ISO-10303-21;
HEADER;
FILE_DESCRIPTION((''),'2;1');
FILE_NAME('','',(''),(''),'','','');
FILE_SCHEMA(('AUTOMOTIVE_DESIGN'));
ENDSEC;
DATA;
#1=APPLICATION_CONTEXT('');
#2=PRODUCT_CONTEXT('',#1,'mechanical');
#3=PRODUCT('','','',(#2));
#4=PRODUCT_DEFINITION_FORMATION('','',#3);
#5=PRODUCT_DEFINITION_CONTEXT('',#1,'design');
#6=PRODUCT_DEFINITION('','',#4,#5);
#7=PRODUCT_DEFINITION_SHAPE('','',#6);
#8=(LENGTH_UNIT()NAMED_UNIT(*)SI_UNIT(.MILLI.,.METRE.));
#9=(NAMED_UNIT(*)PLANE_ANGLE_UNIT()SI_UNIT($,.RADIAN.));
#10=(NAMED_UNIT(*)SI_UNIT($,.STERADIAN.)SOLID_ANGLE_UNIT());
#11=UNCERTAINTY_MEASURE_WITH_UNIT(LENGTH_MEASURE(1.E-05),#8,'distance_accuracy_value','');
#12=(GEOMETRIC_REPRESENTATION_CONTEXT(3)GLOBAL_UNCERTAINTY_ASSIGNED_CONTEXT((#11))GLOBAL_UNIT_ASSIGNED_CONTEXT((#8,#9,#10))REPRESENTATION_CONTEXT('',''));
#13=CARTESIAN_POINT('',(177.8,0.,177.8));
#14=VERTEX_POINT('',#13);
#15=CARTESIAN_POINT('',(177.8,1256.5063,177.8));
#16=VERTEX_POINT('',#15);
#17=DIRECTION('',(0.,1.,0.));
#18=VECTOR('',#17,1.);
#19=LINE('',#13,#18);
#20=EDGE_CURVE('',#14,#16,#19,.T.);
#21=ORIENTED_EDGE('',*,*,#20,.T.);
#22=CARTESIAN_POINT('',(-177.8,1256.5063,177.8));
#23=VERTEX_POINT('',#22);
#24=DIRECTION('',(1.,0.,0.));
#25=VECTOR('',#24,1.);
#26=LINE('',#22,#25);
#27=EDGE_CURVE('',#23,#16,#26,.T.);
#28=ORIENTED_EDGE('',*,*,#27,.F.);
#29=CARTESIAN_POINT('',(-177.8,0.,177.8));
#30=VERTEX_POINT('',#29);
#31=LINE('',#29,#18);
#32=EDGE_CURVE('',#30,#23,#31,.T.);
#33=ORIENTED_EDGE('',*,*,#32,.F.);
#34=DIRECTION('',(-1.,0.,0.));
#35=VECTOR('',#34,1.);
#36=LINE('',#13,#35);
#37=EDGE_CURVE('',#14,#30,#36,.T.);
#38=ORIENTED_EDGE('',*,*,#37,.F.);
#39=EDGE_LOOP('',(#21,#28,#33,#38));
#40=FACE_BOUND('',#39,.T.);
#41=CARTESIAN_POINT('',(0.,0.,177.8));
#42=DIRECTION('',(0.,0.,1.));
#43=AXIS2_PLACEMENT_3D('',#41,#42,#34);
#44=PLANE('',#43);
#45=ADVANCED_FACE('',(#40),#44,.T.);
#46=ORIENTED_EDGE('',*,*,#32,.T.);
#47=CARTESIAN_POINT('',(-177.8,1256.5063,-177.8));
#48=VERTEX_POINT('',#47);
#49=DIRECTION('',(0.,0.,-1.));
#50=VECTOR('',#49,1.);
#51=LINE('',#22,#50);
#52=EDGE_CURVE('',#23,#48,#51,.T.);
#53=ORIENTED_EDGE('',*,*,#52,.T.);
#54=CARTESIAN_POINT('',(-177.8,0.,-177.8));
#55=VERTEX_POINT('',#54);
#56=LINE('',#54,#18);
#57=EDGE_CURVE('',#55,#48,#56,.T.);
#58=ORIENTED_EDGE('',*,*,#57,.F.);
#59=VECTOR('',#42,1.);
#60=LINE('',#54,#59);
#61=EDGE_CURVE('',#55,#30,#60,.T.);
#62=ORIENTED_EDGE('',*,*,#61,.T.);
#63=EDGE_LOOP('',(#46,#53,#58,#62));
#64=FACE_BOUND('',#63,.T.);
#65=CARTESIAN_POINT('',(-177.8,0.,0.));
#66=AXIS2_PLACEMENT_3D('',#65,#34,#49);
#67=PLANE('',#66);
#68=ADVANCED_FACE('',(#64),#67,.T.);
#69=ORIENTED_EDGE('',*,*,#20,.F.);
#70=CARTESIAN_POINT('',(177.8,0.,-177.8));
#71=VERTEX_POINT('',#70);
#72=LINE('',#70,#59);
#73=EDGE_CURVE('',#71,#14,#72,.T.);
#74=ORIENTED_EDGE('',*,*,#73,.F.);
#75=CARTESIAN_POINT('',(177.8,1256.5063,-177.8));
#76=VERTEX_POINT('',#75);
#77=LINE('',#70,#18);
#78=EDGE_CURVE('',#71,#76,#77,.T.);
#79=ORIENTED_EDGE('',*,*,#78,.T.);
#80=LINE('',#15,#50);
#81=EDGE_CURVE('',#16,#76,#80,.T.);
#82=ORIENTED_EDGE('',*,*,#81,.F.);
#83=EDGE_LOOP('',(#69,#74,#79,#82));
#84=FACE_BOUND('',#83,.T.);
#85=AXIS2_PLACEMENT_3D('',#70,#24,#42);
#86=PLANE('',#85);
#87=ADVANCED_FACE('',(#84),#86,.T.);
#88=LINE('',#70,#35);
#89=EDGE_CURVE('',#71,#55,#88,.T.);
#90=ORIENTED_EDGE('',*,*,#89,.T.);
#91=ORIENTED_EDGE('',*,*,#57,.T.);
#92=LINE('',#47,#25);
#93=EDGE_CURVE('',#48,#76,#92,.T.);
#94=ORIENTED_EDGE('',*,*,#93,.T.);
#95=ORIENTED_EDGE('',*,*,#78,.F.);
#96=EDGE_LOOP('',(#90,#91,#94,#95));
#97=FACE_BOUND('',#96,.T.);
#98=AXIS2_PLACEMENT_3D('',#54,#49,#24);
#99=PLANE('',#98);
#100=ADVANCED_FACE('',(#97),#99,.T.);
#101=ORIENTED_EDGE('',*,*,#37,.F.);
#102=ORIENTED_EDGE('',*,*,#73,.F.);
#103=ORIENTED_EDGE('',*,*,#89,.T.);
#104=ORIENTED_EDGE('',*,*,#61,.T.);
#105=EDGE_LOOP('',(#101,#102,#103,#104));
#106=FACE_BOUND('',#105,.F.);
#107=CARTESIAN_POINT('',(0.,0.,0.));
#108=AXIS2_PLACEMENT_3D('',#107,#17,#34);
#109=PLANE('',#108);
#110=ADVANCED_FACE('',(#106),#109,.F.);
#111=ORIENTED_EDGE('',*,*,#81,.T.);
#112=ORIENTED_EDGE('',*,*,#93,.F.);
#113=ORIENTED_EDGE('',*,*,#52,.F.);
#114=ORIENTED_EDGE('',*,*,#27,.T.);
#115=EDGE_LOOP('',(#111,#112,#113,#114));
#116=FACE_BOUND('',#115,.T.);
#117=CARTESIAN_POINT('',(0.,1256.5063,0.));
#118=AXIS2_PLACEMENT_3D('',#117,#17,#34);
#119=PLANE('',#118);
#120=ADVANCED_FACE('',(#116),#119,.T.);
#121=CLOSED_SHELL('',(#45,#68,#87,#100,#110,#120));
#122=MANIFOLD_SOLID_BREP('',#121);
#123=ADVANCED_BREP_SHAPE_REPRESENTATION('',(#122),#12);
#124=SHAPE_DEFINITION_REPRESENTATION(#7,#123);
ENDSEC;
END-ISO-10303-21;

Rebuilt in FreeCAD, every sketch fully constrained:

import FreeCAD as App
import Part
import Sketcher
from FreeCAD import Vector
Q = App.Units.Quantity

doc = App.newDocument("Part")
body = doc.addObject("PartDesign::Body", "Body")

sketch1 = doc.addObject("Sketcher::SketchObject", "Sketch")
body.addObject(sketch1)
sketch1.AttachmentSupport = (doc.XZ_Plane, [""])
sketch1.MapMode = "FlatFace"
sketch1.addGeometry([
    Part.LineSegment(Vector(-178, -178, 0), Vector(-178, 178, 0)),
    Part.LineSegment(Vector(-178, 178, 0), Vector(178, 178, 0)),
    Part.LineSegment(Vector(178, 178, 0), Vector(178, -178, 0)),
    Part.LineSegment(Vector(178, -178, 0), Vector(-178, -178, 0)),
], False)
sketch1.addConstraint([
    Sketcher.Constraint("Coincident", 0, 2, 1, 1),
    Sketcher.Constraint("Coincident", 1, 2, 2, 1),
    Sketcher.Constraint("Coincident", 2, 2, 3, 1),
    Sketcher.Constraint("Coincident", 3, 2, 0, 1),
    Sketcher.Constraint("Vertical", 0),
    Sketcher.Constraint("Horizontal", 1),
    Sketcher.Constraint("Vertical", 2),
    Sketcher.Constraint("Horizontal", 3),
    Sketcher.Constraint("Symmetric", 0, 2, 2, 2, -1, 1),
    Sketcher.Constraint("Equal", 3, 0),
    Sketcher.Constraint("DistanceX", 1, 1, 1, 2, Q("14 in")),
])
pad1 = doc.addObject("PartDesign::Pad", "Pad")
body.addObject(pad1)
pad1.Profile = sketch1
pad1.Length = Q("49.468752 in")
pad1.Reversed = True

doc.recompute()
